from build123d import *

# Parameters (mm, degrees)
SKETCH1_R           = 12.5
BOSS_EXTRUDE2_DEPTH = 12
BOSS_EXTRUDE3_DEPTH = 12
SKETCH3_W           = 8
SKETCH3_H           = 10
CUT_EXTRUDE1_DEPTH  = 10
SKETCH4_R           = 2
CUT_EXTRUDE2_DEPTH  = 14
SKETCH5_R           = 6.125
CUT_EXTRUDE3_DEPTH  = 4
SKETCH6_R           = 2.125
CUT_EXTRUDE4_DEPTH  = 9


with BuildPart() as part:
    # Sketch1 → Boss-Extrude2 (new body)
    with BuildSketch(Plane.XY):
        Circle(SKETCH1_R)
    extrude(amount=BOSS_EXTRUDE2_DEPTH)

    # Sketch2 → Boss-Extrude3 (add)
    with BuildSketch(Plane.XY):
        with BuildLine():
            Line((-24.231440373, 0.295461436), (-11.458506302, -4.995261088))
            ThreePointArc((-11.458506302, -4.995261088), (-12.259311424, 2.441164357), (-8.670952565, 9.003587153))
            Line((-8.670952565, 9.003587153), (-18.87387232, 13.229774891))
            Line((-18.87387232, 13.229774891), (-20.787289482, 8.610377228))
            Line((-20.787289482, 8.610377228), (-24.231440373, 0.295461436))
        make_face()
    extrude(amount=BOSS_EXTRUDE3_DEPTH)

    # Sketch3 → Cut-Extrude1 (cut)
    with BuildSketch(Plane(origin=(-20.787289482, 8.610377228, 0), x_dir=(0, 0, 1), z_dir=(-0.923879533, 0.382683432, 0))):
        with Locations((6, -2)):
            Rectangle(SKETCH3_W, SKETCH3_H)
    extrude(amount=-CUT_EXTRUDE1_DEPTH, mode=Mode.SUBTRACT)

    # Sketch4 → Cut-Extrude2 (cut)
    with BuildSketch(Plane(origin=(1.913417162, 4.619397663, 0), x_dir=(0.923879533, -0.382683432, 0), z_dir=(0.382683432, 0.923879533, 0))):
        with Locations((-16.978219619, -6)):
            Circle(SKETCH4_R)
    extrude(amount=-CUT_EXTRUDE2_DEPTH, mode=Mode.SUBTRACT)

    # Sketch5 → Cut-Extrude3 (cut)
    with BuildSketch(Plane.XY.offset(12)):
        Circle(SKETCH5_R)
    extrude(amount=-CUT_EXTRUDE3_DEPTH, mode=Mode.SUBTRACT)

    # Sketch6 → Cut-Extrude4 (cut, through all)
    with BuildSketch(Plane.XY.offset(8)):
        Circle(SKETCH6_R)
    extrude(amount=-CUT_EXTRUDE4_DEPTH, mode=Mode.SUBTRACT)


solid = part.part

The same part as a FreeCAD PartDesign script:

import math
import FreeCAD as App
import Part
import Sketcher

V = App.Vector
Q = App.Units.Quantity


def add_polygon(sketch, points):
    """Adds a closed chain of lines whose ends are joined by coincident constraints."""
    first, n = sketch.GeometryCount, len(points)
    for a, b in zip(points, points[1:] + points[:1]):
        sketch.addGeometry(Part.LineSegment(App.Vector(*a, 0), App.Vector(*b, 0)), False)
    for i in range(n):
        sketch.addConstraint(Sketcher.Constraint("Coincident", first + i, 2, first + (i + 1) % n, 1))

doc = App.newDocument("Part")
body = doc.addObject("PartDesign::Body", "Body")

sketch1 = doc.addObject("Sketcher::SketchObject", "Sketch")
body.addObject(sketch1)
sketch1.AttachmentSupport = (doc.XY_Plane, [""])
sketch1.MapMode = "FlatFace"
sketch1.addGeometry(Part.Circle(V(0, 0, 0), V(0, 0, 1), 12), False)
sketch1.addConstraint([
    Sketcher.Constraint("Coincident", 0, 3, -1, 1),
    Sketcher.Constraint("Diameter", 0, 25.0),
])
pad1 = doc.addObject("PartDesign::Pad", "Pad")
body.addObject(pad1)
pad1.Profile = sketch1
pad1.Length = 12

sketch2 = doc.addObject("Sketcher::SketchObject", "Sketch001")
body.addObject(sketch2)
sketch2.AttachmentSupport = (doc.XY_Plane, [""])
sketch2.MapMode = "FlatFace"
sketch2.addGeometry([
    Part.LineSegment(V(-24, 0, 0), V(-11, -5, 0)),
    Part.ArcOfCircle(Part.Circle(V(0, 0, 0), V(0, 0, 1), 12), math.radians(134), math.radians(204)),
    Part.LineSegment(V(-9, 9, 0), V(-19, 13, 0)),
    Part.LineSegment(V(-19, 13, 0), V(-21, 9, 0)),
    Part.LineSegment(V(-21, 9, 0), V(-24, 0, 0)),
], False)
sketch2.addConstraint([
    Sketcher.Constraint("Coincident", 0, 2, 1, 2),
    Sketcher.Constraint("Coincident", 1, 1, 2, 1),
    Sketcher.Constraint("Coincident", 2, 2, 3, 1),
    Sketcher.Constraint("Coincident", 3, 2, 4, 1),
    Sketcher.Constraint("Coincident", 4, 2, 0, 1),
    Sketcher.Constraint("Coincident", 1, 3, -1, 1),
    Sketcher.Constraint("Parallel", 0, 2),
    Sketcher.Constraint("Perpendicular", 2, 3),
    Sketcher.Constraint("Parallel", 3, 4),
    Sketcher.Constraint("Radius", 1, 12.5),
    Sketcher.Constraint("Distance", 3, 5.0),
    Sketcher.Constraint("Distance", 4, 9.0),
    Sketcher.Constraint("Angle", 0, Q("-22.5 deg")),
    Sketcher.Constraint("Distance", 2, 11.043561),
    Sketcher.Constraint("DistanceY", 0, 2, -1, 1, 4.995261),
])
pad2 = doc.addObject("PartDesign::Pad", "Pad001")
body.addObject(pad2)
pad2.Profile = sketch2
pad2.Length = 12

sketch3 = doc.addObject("Sketcher::SketchObject", "Sketch002")
body.addObject(sketch3)
sketch3.Placement = App.Placement(V(-20.787289, 8.610377, 0), App.Rotation(V(0, 0, 1), V(0.382683432, 0.923879533, 0), V(-0.923879533, 0.382683432, 0), "ZXY"))
add_polygon(sketch3, [(2, 3), (2, -7), (10, -7), (10, 3)])
sketch3.addConstraint([
    Sketcher.Constraint("Vertical", 0),
    Sketcher.Constraint("Horizontal", 1),
    Sketcher.Constraint("Vertical", 2),
    Sketcher.Constraint("Horizontal", 3),
    Sketcher.Constraint("DistanceX", 1, 1, 1, 2, 8.0),
    Sketcher.Constraint("DistanceY", 0, 2, 0, 1, 10.0),
    Sketcher.Constraint("DistanceX", -1, 1, 0, 2, 2.0),
    Sketcher.Constraint("DistanceY", 0, 2, -1, 1, 7.0),
])
pocket1 = doc.addObject("PartDesign::Pocket", "Pocket")
body.addObject(pocket1)
pocket1.Profile = sketch3
pocket1.Length = 10

sketch4 = doc.addObject("Sketcher::SketchObject", "Sketch003")
body.addObject(sketch4)
sketch4.Placement = App.Placement(V(1.913417, 4.619398, 0), App.Rotation(V(0.923879533, -0.382683432, 0), V(0, 0, -1.000000001), V(0.382683432, 0.923879533, 0), "ZXY"))
sketch4.addGeometry(Part.Circle(V(-17, -6, 0), V(0, 0, 1), 2), False)
sketch4.addConstraint([
    Sketcher.Constraint("Diameter", 0, 4.0),
    Sketcher.Constraint("DistanceY", 0, 3, -1, 1, 6.0),
    Sketcher.Constraint("DistanceX", 0, 3, -1, 1, 16.97822),
])
pocket2 = doc.addObject("PartDesign::Pocket", "Pocket001")
body.addObject(pocket2)
pocket2.Profile = sketch4
pocket2.Length = 14

sketch5 = doc.addObject("Sketcher::SketchObject", "Sketch004")
body.addObject(sketch5)
sketch5.AttachmentSupport = (doc.XY_Plane, [""])
sketch5.MapMode = "FlatFace"
sketch5.AttachmentOffset = App.Placement(V(0, 0, 12), App.Rotation())
sketch5.addGeometry(Part.Circle(V(0, 0, 0), V(0, 0, 1), 6), False)
sketch5.addConstraint([
    Sketcher.Constraint("Coincident", 0, 3, -1, 1),
    Sketcher.Constraint("Diameter", 0, 12.25),
])
pocket3 = doc.addObject("PartDesign::Pocket", "Pocket002")
body.addObject(pocket3)
pocket3.Profile = sketch5
pocket3.Length = 4

sketch6 = doc.addObject("Sketcher::SketchObject", "Sketch005")
body.addObject(sketch6)
sketch6.AttachmentSupport = (doc.XY_Plane, [""])
sketch6.MapMode = "FlatFace"
sketch6.AttachmentOffset = App.Placement(V(0, 0, 8), App.Rotation())
sketch6.addGeometry(Part.Circle(V(0, 0, 0), V(0, 0, 1), 2.1), False)
sketch6.addConstraint([
    Sketcher.Constraint("Coincident", 0, 3, -1, 1),
    Sketcher.Constraint("Diameter", 0, 4.25),
])
pocket4 = doc.addObject("PartDesign::Pocket", "Pocket003")
body.addObject(pocket4)
pocket4.Profile = sketch6
pocket4.Type = "ThroughAll"

doc.recompute()
